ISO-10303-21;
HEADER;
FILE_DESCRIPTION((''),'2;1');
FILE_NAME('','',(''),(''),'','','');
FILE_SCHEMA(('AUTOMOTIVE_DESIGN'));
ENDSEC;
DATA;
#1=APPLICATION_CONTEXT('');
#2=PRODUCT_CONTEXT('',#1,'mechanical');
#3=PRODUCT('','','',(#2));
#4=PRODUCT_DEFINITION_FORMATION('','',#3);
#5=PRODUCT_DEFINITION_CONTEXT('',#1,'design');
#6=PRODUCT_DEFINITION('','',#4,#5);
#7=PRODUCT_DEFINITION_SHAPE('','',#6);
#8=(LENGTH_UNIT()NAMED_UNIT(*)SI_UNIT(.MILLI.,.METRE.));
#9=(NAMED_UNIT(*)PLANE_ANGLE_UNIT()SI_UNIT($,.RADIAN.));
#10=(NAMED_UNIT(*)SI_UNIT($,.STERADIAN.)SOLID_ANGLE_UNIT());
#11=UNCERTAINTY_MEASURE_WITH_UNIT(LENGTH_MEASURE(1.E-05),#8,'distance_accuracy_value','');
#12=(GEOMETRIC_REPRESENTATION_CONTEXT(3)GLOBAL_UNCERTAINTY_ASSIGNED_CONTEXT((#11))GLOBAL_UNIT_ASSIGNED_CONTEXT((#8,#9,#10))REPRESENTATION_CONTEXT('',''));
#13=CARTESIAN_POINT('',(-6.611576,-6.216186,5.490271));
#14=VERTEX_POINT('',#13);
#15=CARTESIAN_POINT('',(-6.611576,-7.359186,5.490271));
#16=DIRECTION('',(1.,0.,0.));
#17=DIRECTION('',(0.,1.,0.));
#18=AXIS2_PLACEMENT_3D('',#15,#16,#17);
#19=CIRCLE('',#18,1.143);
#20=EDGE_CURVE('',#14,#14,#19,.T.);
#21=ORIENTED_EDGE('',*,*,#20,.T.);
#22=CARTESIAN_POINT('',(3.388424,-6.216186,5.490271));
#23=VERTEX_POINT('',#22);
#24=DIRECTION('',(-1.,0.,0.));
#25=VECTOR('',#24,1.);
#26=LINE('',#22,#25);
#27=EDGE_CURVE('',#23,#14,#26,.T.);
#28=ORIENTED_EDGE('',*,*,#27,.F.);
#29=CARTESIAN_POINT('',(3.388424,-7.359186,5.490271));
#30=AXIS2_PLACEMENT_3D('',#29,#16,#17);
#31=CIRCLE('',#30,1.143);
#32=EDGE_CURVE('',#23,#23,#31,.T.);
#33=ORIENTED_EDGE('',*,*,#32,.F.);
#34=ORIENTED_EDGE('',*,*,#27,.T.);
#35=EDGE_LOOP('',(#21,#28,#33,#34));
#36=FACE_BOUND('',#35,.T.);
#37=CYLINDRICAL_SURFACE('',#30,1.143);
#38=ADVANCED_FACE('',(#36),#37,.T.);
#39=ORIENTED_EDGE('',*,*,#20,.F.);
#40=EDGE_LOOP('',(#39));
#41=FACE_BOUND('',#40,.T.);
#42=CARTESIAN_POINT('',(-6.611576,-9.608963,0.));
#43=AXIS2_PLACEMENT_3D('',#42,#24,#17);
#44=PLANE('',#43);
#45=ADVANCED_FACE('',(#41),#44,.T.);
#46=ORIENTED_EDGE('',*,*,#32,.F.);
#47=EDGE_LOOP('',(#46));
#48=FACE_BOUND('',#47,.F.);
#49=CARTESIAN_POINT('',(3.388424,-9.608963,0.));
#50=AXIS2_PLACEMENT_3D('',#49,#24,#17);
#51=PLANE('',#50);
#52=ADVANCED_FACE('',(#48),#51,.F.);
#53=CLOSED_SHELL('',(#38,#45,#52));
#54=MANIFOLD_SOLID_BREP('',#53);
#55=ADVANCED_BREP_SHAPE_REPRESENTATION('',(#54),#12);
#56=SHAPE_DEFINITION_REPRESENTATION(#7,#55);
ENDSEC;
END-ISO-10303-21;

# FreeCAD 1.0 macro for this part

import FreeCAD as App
import Part
import Sketcher
from FreeCAD import Vector
Q = App.Units.Quantity


def add_polygon(sketch, points):
    """Adds a closed chain of lines whose ends are joined by coincident constraints."""
    first, n = sketch.GeometryCount, len(points)
    for a, b in zip(points, points[1:] + points[:1]):
        sketch.addGeometry(Part.LineSegment(App.Vector(*a, 0), App.Vector(*b, 0)), False)
    for i in range(n):
        sketch.addConstraint(Sketcher.Constraint("Coincident", first + i, 2, first + (i + 1) % n, 1))

doc = App.newDocument("Part")
body = doc.addObject("PartDesign::Body", "Body")

sketch1 = doc.addObject("Sketcher::SketchObject", "Sketch")
body.addObject(sketch1)
sketch1.AttachmentSupport = (doc.XY_Plane, [""])
sketch1.MapMode = "FlatFace"
add_polygon(sketch1, [(-7, -5), (-7, -10), (3, -10), (3, -5)])
sketch1.addConstraint([
    Sketcher.Constraint("Vertical", 0),
    Sketcher.Constraint("Horizontal", 1),
    Sketcher.Constraint("Vertical", 2),
    Sketcher.Constraint("Horizontal", 3),
    Sketcher.Constraint("DistanceY", 0, 2, 0, 1, Q("0.2 in")),
    Sketcher.Constraint("DistanceX", 1, 1, 1, 2, 10.0),
    Sketcher.Constraint("DistanceX", 0, 2, -1, 1, 6.611576),
    Sketcher.Constraint("DistanceY", 0, 2, -1, 1, 9.608963),
])
pad1 = doc.addObject("PartDesign::Pad", "Pad")
body.addObject(pad1)
pad1.Profile = sketch1
pad1.Length = Q("0.5 in")

sketch2 = doc.addObject("Sketcher::SketchObject", "Sketch001")
body.addObject(sketch2)
sketch2.AttachmentSupport = (doc.YZ_Plane, [""])
sketch2.MapMode = "FlatFace"
sketch2.AttachmentOffset = App.Placement(Vector(0, 0, 3.388424), App.Rotation())
add_polygon(sketch2, [(-10.1, 13.4), (-10.1, -1), (-3.6, -1), (-3.6, 13.4)])
sketch2.addGeometry(Part.Circle(Vector(-7.4, 5.5, 0), Vector(0, 0, 1), 1.1), False)
sketch2.addConstraint([
    Sketcher.Constraint("Vertical", 0),
    Sketcher.Constraint("Horizontal", 1),
    Sketcher.Constraint("Vertical", 2),
    Sketcher.Constraint("Horizontal", 3),
    Sketcher.Constraint("Diameter", 4, Q("0.09 in")),
    Sketcher.Constraint("DistanceX", 1, 1, 1, 2, 6.466258),
    Sketcher.Constraint("DistanceY", 0, 2, 0, 1, 14.43815),
    Sketcher.Constraint("DistanceY", -1, 1, 2, 2, 13.442301),
    Sketcher.Constraint("DistanceY", -1, 1, 4, 3, 5.490271),
    Sketcher.Constraint("DistanceX", 4, 3, 1, 2, 3.719761),
    Sketcher.Constraint("DistanceX", 4, 3, -1, 1, 7.359186),
])
pocket1 = doc.addObject("PartDesign::Pocket", "Pocket")
body.addObject(pocket1)
pocket1.Profile = sketch2
pocket1.Type = "ThroughAll"

doc.recompute()
